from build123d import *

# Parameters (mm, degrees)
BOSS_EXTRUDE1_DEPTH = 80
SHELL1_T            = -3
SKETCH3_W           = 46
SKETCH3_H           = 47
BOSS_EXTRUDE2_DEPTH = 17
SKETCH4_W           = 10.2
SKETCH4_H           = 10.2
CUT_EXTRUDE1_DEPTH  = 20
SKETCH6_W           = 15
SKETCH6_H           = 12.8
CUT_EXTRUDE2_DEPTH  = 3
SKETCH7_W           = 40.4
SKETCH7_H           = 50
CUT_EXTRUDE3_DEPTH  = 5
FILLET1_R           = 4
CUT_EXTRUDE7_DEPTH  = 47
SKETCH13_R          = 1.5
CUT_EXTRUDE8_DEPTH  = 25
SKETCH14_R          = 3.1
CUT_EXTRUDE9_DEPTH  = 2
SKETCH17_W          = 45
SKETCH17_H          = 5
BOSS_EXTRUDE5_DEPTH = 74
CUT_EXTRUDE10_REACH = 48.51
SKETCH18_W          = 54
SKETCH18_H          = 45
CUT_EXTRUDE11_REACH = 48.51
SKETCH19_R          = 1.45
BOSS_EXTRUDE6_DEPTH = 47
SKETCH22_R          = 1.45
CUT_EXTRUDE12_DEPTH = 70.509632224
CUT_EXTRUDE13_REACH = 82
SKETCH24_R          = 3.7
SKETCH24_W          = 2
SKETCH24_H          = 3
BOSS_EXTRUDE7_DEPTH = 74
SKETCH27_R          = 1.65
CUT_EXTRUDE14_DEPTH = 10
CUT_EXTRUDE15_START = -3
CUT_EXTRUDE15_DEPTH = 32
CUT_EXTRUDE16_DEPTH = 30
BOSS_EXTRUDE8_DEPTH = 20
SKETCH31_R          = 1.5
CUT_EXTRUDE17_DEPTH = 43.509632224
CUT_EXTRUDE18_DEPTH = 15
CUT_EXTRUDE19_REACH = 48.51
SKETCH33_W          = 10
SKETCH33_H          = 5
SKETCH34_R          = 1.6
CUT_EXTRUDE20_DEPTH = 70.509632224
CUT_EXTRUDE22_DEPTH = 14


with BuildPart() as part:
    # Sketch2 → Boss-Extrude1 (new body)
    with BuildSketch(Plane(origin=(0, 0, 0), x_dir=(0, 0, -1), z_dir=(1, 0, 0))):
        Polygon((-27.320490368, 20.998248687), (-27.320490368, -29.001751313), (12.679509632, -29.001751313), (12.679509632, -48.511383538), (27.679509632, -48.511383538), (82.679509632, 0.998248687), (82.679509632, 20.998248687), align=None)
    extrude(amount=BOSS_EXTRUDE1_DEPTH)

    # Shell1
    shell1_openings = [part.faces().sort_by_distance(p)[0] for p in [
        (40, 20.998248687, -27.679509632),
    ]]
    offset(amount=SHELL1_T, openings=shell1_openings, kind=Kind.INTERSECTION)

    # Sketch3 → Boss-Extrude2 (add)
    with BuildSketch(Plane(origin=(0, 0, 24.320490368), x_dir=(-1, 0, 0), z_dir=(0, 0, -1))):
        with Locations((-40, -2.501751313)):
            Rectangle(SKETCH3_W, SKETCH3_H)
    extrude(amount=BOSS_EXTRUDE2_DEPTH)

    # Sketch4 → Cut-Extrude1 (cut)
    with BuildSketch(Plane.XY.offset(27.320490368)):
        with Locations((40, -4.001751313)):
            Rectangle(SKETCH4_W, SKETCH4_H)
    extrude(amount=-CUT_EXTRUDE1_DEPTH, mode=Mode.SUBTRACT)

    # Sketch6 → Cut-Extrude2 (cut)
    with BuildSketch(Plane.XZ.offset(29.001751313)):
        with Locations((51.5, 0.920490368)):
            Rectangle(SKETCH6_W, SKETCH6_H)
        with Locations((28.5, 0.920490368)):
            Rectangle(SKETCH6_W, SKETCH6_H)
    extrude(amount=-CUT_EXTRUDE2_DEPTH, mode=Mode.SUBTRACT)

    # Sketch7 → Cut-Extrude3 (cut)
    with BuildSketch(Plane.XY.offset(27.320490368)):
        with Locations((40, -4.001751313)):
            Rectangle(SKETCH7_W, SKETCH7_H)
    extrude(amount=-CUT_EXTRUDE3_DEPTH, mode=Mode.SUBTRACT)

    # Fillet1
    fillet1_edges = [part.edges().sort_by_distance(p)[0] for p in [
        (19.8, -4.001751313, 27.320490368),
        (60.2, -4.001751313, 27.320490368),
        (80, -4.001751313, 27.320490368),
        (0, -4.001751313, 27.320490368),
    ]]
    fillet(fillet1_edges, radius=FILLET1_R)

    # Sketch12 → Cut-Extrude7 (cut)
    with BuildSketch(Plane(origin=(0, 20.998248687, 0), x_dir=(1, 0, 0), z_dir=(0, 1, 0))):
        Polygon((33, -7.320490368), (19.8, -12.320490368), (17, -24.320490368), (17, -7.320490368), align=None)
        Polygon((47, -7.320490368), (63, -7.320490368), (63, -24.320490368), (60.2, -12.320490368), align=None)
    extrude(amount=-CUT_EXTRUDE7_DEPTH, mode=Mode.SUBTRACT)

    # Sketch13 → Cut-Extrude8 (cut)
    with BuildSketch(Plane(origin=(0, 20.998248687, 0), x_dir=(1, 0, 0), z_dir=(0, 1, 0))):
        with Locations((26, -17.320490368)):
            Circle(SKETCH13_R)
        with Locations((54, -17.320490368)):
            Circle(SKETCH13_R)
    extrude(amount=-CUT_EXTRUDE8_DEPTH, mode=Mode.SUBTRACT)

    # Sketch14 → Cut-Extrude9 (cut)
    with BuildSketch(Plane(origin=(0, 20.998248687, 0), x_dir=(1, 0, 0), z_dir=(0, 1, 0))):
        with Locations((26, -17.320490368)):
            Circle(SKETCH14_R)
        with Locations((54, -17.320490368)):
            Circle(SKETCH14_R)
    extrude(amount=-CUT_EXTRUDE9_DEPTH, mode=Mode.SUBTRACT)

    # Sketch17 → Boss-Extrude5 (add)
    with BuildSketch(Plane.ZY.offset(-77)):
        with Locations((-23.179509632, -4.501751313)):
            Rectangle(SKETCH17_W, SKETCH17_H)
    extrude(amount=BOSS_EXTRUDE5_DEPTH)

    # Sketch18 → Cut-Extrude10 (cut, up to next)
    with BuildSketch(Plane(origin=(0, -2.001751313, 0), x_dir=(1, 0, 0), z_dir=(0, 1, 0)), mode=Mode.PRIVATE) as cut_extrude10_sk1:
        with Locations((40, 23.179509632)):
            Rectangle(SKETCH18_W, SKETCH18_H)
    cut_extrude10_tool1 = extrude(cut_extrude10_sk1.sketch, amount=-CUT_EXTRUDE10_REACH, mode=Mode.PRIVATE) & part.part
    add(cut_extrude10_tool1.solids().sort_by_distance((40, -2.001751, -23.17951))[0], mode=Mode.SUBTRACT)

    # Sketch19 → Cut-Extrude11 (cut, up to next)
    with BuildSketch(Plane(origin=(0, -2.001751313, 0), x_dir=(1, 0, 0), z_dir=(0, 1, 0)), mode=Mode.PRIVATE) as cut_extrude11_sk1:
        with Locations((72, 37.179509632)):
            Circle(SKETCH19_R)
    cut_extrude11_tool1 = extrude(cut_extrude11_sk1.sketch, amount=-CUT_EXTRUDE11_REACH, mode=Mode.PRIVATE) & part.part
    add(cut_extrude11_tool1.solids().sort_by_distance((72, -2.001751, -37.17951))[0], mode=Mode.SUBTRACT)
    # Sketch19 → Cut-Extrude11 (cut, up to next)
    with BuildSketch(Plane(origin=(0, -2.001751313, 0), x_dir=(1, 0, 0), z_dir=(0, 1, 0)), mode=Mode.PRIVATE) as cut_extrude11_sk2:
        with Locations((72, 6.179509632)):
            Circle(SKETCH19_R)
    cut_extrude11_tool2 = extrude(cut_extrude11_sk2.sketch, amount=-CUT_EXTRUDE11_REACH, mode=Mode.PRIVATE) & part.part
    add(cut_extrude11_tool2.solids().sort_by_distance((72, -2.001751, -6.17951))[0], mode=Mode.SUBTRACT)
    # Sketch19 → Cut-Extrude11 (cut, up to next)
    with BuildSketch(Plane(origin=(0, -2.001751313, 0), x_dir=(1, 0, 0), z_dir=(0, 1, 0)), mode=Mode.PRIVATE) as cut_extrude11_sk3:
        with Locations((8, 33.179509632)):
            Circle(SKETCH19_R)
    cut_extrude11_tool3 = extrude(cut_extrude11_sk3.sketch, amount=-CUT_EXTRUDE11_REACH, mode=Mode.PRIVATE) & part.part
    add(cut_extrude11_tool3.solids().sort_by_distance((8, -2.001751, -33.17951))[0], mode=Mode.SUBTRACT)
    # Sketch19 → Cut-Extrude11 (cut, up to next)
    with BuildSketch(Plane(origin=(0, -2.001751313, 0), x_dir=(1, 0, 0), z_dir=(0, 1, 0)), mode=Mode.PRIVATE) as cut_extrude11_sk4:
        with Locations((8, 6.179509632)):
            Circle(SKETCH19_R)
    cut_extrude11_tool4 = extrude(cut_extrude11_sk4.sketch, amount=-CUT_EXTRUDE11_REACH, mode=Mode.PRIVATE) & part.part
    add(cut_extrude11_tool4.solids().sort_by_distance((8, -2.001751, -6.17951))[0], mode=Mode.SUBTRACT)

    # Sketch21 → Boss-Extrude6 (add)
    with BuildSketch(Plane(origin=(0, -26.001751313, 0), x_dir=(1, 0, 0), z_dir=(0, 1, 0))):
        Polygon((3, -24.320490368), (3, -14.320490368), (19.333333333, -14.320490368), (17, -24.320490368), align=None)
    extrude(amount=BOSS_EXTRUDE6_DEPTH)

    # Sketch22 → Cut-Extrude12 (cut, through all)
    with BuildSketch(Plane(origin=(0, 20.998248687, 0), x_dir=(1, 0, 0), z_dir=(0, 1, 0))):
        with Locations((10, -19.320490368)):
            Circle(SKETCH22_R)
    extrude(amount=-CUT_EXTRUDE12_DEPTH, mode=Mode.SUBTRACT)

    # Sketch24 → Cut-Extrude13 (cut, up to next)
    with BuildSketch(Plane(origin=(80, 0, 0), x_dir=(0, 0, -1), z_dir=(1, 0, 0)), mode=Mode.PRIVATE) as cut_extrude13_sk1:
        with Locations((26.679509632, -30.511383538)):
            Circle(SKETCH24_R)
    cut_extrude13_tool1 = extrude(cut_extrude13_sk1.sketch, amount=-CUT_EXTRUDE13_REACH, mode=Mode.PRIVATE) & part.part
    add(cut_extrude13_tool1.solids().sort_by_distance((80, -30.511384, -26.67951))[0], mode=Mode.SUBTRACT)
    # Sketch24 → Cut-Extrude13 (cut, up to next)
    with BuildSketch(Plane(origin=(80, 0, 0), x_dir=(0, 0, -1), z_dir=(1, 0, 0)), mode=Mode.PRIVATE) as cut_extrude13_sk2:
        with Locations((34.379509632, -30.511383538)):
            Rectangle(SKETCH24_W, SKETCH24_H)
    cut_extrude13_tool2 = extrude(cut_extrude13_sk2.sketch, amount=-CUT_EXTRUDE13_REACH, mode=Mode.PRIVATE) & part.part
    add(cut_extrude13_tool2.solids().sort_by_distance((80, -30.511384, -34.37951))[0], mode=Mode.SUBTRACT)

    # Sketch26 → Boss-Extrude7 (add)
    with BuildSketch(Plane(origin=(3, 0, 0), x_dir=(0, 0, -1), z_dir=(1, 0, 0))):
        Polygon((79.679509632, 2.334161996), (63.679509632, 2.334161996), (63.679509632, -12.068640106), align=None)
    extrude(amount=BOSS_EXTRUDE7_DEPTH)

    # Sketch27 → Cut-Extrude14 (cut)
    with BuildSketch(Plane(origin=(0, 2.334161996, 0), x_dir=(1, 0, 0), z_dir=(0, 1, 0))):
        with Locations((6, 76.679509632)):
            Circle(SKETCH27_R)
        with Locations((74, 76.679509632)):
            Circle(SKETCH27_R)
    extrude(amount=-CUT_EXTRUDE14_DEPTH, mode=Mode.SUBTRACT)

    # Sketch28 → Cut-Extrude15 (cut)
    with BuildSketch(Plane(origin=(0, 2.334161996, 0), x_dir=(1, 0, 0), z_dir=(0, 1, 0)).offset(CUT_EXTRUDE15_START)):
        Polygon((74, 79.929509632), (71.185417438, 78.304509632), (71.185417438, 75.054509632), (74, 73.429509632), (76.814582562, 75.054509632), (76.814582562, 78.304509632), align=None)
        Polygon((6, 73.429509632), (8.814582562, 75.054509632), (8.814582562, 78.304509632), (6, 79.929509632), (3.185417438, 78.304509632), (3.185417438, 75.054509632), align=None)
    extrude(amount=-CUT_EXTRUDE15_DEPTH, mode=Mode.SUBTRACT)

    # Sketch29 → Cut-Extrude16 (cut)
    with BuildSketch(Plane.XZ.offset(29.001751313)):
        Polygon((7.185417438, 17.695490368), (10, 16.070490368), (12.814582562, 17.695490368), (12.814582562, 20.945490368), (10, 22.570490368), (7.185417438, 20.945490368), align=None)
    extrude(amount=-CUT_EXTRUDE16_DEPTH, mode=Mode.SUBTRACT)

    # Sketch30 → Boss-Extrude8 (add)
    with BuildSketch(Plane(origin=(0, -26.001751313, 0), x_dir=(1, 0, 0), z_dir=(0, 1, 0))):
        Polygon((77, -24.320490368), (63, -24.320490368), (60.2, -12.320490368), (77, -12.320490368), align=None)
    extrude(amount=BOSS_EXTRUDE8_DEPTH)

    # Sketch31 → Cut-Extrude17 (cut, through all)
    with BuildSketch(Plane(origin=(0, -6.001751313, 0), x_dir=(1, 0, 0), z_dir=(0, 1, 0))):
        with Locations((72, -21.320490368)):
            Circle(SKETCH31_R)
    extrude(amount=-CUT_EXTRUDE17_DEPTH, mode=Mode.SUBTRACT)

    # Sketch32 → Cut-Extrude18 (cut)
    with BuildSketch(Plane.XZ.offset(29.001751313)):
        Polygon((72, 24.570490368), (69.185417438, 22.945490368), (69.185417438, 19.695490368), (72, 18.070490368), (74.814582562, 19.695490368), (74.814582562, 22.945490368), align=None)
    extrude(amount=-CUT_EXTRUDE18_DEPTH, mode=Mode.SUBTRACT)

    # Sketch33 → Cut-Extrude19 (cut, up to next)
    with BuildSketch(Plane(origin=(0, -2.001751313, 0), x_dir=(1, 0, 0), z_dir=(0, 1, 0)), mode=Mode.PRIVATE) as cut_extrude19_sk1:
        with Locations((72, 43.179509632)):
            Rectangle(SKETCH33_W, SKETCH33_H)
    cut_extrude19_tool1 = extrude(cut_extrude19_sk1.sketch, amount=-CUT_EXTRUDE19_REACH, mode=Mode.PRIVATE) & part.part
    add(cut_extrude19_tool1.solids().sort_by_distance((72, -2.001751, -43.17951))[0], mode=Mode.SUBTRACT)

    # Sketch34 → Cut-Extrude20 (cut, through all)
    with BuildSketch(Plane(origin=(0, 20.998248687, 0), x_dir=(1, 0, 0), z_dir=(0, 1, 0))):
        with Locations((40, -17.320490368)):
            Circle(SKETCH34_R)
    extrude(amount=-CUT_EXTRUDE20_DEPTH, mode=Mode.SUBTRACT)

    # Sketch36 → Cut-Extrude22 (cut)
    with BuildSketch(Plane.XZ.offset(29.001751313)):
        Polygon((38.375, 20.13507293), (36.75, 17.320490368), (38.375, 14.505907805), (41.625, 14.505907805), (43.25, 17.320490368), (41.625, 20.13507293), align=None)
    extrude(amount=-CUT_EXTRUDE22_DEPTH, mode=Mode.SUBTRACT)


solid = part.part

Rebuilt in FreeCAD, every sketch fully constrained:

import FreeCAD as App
import Part
import Sketcher
Q = App.Units.Quantity


def edges_at(feature, points):
    """Names of the edges that pass closest to the given points."""
    edges = feature.Shape.Edges
    near = lambda p: min(range(len(edges)), key=lambda i: edges[i].distToShape(Part.Vertex(*p))[0])
    return sorted({f"Edge{near(p) + 1}" for p in points})


def faces_at(feature, points):
    """Names of the faces that lie closest to the given points."""
    faces = feature.Shape.Faces
    near = lambda p: min(range(len(faces)), key=lambda i: faces[i].distToShape(Part.Vertex(*p))[0])
    return sorted({f"Face{near(p) + 1}" for p in points})


def add_polygon(sketch, points):
    """Adds a closed chain of lines whose ends are joined by coincident constraints."""
    first, n = sketch.GeometryCount, len(points)
    for a, b in zip(points, points[1:] + points[:1]):
        sketch.addGeometry(Part.LineSegment(App.Vector(*a, 0), App.Vector(*b, 0)), False)
    for i in range(n):
        sketch.addConstraint(Sketcher.Constraint("Coincident", first + i, 2, first + (i + 1) % n, 1))

doc = App.newDocument("Part")
body = doc.addObject("PartDesign::Body", "Body")

# Sketch on YZ plane
sketch1 = body.newObject("Sketcher::SketchObject", "Sketch")
sketch1.AttachmentSupport = (doc.getObject("YZ_Plane"), [""])
sketch1.MapMode = "FlatFace"
add_polygon(sketch1, [(21, 27), (-29, 27), (-29, -13), (-49, -13), (-49, -28), (1, -83), (21, -83)])  # lines 0-6
sketch1.addConstraint(Sketcher.Constraint("Horizontal", 0))
sketch1.addConstraint(Sketcher.Constraint("Vertical", 1))
sketch1.addConstraint(Sketcher.Constraint("Horizontal", 2))
sketch1.addConstraint(Sketcher.Constraint("Vertical", 3))
sketch1.addConstraint(Sketcher.Constraint("Horizontal", 5))
sketch1.addConstraint(Sketcher.Constraint("Vertical", 6))
sketch1.addConstraint(Sketcher.Constraint("DistanceX", 0, 2, 0, 1, Q("50 mm")))
sketch1.addConstraint(Sketcher.Constraint("DistanceX", 5, 1, 5, 2, Q("20 mm")))
sketch1.addConstraint(Sketcher.Constraint("DistanceY", 1, 2, 1, 1, Q("40 mm")))
sketch1.addConstraint(Sketcher.Constraint("DistanceY", 3, 2, 3, 1, Q("15 mm")))
sketch1.addConstraint(Sketcher.Constraint("DistanceY", 6, 1, 6, 2, Q("110 mm")))
sketch1.addConstraint(Sketcher.Constraint("DistanceX", 2, 2, 2, 1, Q("19.509632 mm")))
sketch1.addConstraint(Sketcher.Constraint("DistanceX", 0, 2, -1, 1, Q("29.001751 mm")))
sketch1.addConstraint(Sketcher.Constraint("DistanceY", -1, 1, 0, 2, Q("27.32049 mm")))
pad1 = body.newObject("PartDesign::Pad", "Pad")
pad1.Profile = sketch1
pad1.Length = 80
doc.recompute()

thickness = body.newObject("PartDesign::Thickness", "Thickness")
thickness.Base = (pad1, faces_at(pad1, [(40, 20.998, -27.68)]))
thickness.Value = 3
thickness.Reversed = True
thickness.Join = "Intersection"

# Sketch on XY plane
sketch2 = body.newObject("Sketcher::SketchObject", "Sketch001")
sketch2.AttachmentSupport = (doc.getObject("XY_Plane"), [""])
sketch2.MapMode = "FlatFace"
sketch2.AttachmentOffset = App.Placement(App.Vector(0, 0, 24.32049), App.Rotation())
add_polygon(sketch2, [(63, 21), (63, -26), (17, -26), (17, 21)])  # lines 0-3
sketch2.addConstraint(Sketcher.Constraint("Vertical", 0))
sketch2.addConstraint(Sketcher.Constraint("Horizontal", 1))
sketch2.addConstraint(Sketcher.Constraint("Vertical", 2))
sketch2.addConstraint(Sketcher.Constraint("Horizontal", 3))
sketch2.addConstraint(Sketcher.Constraint("DistanceX", 1, 2, 1, 1, Q("46 mm")))
sketch2.addConstraint(Sketcher.Constraint("DistanceY", 0, 2, 0, 1, Q("47 mm")))
sketch2.addConstraint(Sketcher.Constraint("DistanceX", -1, 1, 0, 2, Q("63 mm")))
sketch2.addConstraint(Sketcher.Constraint("DistanceY", 0, 2, -1, 1, Q("26.001751 mm")))
pad2 = body.newObject("PartDesign::Pad", "Pad001")
pad2.Profile = sketch2
pad2.Length = 17
pad2.Reversed = True

# Sketch on XY plane
sketch3 = body.newObject("Sketcher::SketchObject", "Sketch002")
sketch3.AttachmentSupport = (doc.getObject("XY_Plane"), [""])
sketch3.MapMode = "FlatFace"
sketch3.AttachmentOffset = App.Placement(App.Vector(0, 0, 27.32049), App.Rotation())
add_polygon(sketch3, [(35, 1), (35, -9), (45, -9), (45, 1)])  # lines 0-3
sketch3.addConstraint(Sketcher.Constraint("Vertical", 0))
sketch3.addConstraint(Sketcher.Constraint("Horizontal", 1))
sketch3.addConstraint(Sketcher.Constraint("Vertical", 2))
sketch3.addConstraint(Sketcher.Constraint("Horizontal", 3))
sketch3.addConstraint(Sketcher.Constraint("Equal", 3, 0))
sketch3.addConstraint(Sketcher.Constraint("DistanceX", 1, 1, 1, 2, Q("10.2 mm")))
sketch3.addConstraint(Sketcher.Constraint("DistanceX", -1, 1, 0, 2, Q("34.9 mm")))
sketch3.addConstraint(Sketcher.Constraint("DistanceY", 0, 2, -1, 1, Q("9.101751 mm")))
pocket1 = body.newObject("PartDesign::Pocket", "Pocket")
pocket1.Profile = sketch3
pocket1.Length = 20

# Sketch on XZ plane
sketch4 = body.newObject("Sketcher::SketchObject", "Sketch003")
sketch4.AttachmentSupport = (doc.getObject("XZ_Plane"), [""])
sketch4.MapMode = "FlatFace"
sketch4.AttachmentOffset = App.Placement(App.Vector(0, 0, 29.001751), App.Rotation())
add_polygon(sketch4, [(44, 7), (44, -5), (59, -5), (59, 7)])  # lines 0-3
add_polygon(sketch4, [(21, 7), (21, -5), (36, -5), (36, 7)])  # lines 4-7
sketch4.addConstraint(Sketcher.Constraint("Vertical", 0))
sketch4.addConstraint(Sketcher.Constraint("Horizontal", 1))
sketch4.addConstraint(Sketcher.Constraint("Vertical", 2))
sketch4.addConstraint(Sketcher.Constraint("Horizontal", 3))
sketch4.addConstraint(Sketcher.Constraint("Vertical", 4))
sketch4.addConstraint(Sketcher.Constraint("Horizontal", 5))
sketch4.addConstraint(Sketcher.Constraint("Vertical", 6))
sketch4.addConstraint(Sketcher.Constraint("Horizontal", 7))
sketch4.addConstraint(Sketcher.Constraint("Horizontal", 1, 2, 4, 2))
sketch4.addConstraint(Sketcher.Constraint("Horizontal", 3, 2, 6, 2))
sketch4.addConstraint(Sketcher.Constraint("Equal", 3, 5))
sketch4.addConstraint(Sketcher.Constraint("DistanceX", 1, 1, 1, 2, Q("15 mm")))
sketch4.addConstraint(Sketcher.Constraint("DistanceY", 0, 2, 0, 1, Q("12.8 mm")))
sketch4.addConstraint(Sketcher.Constraint("DistanceX", -1, 1, 0, 2, Q("44 mm")))
sketch4.addConstraint(Sketcher.Constraint("DistanceX", -1, 1, 4, 2, Q("21 mm")))
sketch4.addConstraint(Sketcher.Constraint("DistanceY", 0, 2, -1, 1, Q("5.47951 mm")))
pocket2 = body.newObject("PartDesign::Pocket", "Pocket001")
pocket2.Profile = sketch4
pocket2.Length = 3

# Sketch on XY plane
sketch5 = body.newObject("Sketcher::SketchObject", "Sketch004")
sketch5.AttachmentSupport = (doc.getObject("XY_Plane"), [""])
sketch5.MapMode = "FlatFace"
sketch5.AttachmentOffset = App.Placement(App.Vector(0, 0, 27.32049), App.Rotation())
add_polygon(sketch5, [(20, 21), (20, -29), (60, -29), (60, 21)])  # lines 0-3
sketch5.addConstraint(Sketcher.Constraint("Vertical", 0))
sketch5.addConstraint(Sketcher.Constraint("Horizontal", 1))
sketch5.addConstraint(Sketcher.Constraint("Vertical", 2))
sketch5.addConstraint(Sketcher.Constraint("Horizontal", 3))
sketch5.addConstraint(Sketcher.Constraint("DistanceY", 0, 2, 0, 1, Q("50 mm")))
sketch5.addConstraint(Sketcher.Constraint("DistanceX", 1, 1, 1, 2, Q("40.4 mm")))
sketch5.addConstraint(Sketcher.Constraint("DistanceX", -1, 1, 0, 2, Q("19.8 mm")))
sketch5.addConstraint(Sketcher.Constraint("DistanceY", 0, 2, -1, 1, Q("29.001751 mm")))
pocket3 = body.newObject("PartDesign::Pocket", "Pocket002")
pocket3.Profile = sketch5
pocket3.Length = 5
doc.recompute()

fillet = body.newObject("PartDesign::Fillet", "Fillet")
fillet.Base = (pocket3, edges_at(pocket3, [
    (19.8, -4.002, 27.32),
    (60.2, -4.002, 27.32),
    (80, -4.002, 27.32),
    (0, -4.002, 27.32),
]))
fillet.Radius = 4

# Sketch on XZ plane
sketch6 = body.newObject("Sketcher::SketchObject", "Sketch005")
sketch6.AttachmentSupport = (doc.getObject("XZ_Plane"), [""])
sketch6.MapMode = "FlatFace"
sketch6.AttachmentOffset = App.Placement(App.Vector(0, 0, -20.998249), App.Rotation())
add_polygon(sketch6, [(20, 12), (33, 7), (17, 7), (17, 24)])  # lines 0-3
add_polygon(sketch6, [(63, 7), (47, 7), (60, 12), (63, 24)])  # lines 4-7
sketch6.addConstraint(Sketcher.Constraint("Horizontal", 1))
sketch6.addConstraint(Sketcher.Constraint("Vertical", 2))
sketch6.addConstraint(Sketcher.Constraint("Horizontal", 4))
sketch6.addConstraint(Sketcher.Constraint("Vertical", 7))
sketch6.addConstraint(Sketcher.Constraint("Horizontal", 1, 2, 4, 2))
sketch6.addConstraint(Sketcher.Constraint("Horizontal", 3, 2, 5, 2))
sketch6.addConstraint(Sketcher.Constraint("Horizontal", 2, 2, 6, 2))
sketch6.addConstraint(Sketcher.Constraint("Equal", 1, 4))
sketch6.addConstraint(Sketcher.Constraint("Equal", 0, 5))
sketch6.addConstraint(Sketcher.Constraint("DistanceX", 1, 2, 1, 1, Q("16 mm")))
sketch6.addConstraint(Sketcher.Constraint("DistanceY", 2, 1, 2, 2, Q("17 mm")))
sketch6.addConstraint(Sketcher.Constraint("DistanceX", -1, 1, 0, 2, Q("33 mm")))
sketch6.addConstraint(Sketcher.Constraint("DistanceX", -1, 1, 4, 2, Q("47 mm")))
sketch6.addConstraint(Sketcher.Constraint("DistanceY", 1, 2, 3, 2, Q("5 mm")))
sketch6.addConstraint(Sketcher.Constraint("DistanceX", -1, 1, 3, 2, Q("19.8 mm")))
sketch6.addConstraint(Sketcher.Constraint("DistanceY", -1, 1, 0, 2, Q("7.32049 mm")))
pocket4 = body.newObject("PartDesign::Pocket", "Pocket003")
pocket4.Profile = sketch6
pocket4.Length = 47
pocket4.Reversed = True

# Sketch on XZ plane
sketch7 = body.newObject("Sketcher::SketchObject", "Sketch006")
sketch7.AttachmentSupport = (doc.getObject("XZ_Plane"), [""])
sketch7.MapMode = "FlatFace"
sketch7.AttachmentOffset = App.Placement(App.Vector(0, 0, -20.998249), App.Rotation())
sketch7.addGeometry(Part.Circle(App.Vector(26, 17.3, 0), App.Vector(0, 0, 1), 1.5), False)
sketch7.addGeometry(Part.Circle(App.Vector(54, 17.3, 0), App.Vector(0, 0, 1), 1.5), False)
sketch7.addConstraint(Sketcher.Constraint("Equal", 0, 1))
sketch7.addConstraint(Sketcher.Constraint("Horizontal", 0, 3, 1, 3))
sketch7.addConstraint(Sketcher.Constraint("Diameter", 0, Q("3 mm")))
sketch7.addConstraint(Sketcher.Constraint("DistanceX", -1, 1, 0, 3, Q("26 mm")))
sketch7.addConstraint(Sketcher.Constraint("DistanceX", -1, 1, 1, 3, Q("54 mm")))
sketch7.addConstraint(Sketcher.Constraint("DistanceY", -1, 1, 0, 3, Q("17.32049 mm")))
pocket5 = body.newObject("PartDesign::Pocket", "Pocket004")
pocket5.Profile = sketch7
pocket5.Length = 25
pocket5.Reversed = True

# Sketch on XZ plane
sketch8 = body.newObject("Sketcher::SketchObject", "Sketch007")
sketch8.AttachmentSupport = (doc.getObject("XZ_Plane"), [""])
sketch8.MapMode = "FlatFace"
sketch8.AttachmentOffset = App.Placement(App.Vector(0, 0, -20.998249), App.Rotation())
sketch8.addGeometry(Part.Circle(App.Vector(26, 17.3, 0), App.Vector(0, 0, 1), 3.1), False)
sketch8.addGeometry(Part.Circle(App.Vector(54, 17.3, 0), App.Vector(0, 0, 1), 3.1), False)
sketch8.addConstraint(Sketcher.Constraint("Equal", 0, 1))
sketch8.addConstraint(Sketcher.Constraint("Horizontal", 0, 3, 1, 3))
sketch8.addConstraint(Sketcher.Constraint("Diameter", 0, Q("6.2 mm")))
sketch8.addConstraint(Sketcher.Constraint("DistanceX", -1, 1, 0, 3, Q("26 mm")))
sketch8.addConstraint(Sketcher.Constraint("DistanceX", -1, 1, 1, 3, Q("54 mm")))
sketch8.addConstraint(Sketcher.Constraint("DistanceY", -1, 1, 0, 3, Q("17.32049 mm")))
pocket6 = body.newObject("PartDesign::Pocket", "Pocket005")
pocket6.Profile = sketch8
pocket6.Length = 2
pocket6.Reversed = True

# Sketch on YZ plane
sketch9 = body.newObject("Sketcher::SketchObject", "Sketch008")
sketch9.AttachmentSupport = (doc.getObject("YZ_Plane"), [""])
sketch9.MapMode = "FlatFace"
sketch9.AttachmentOffset = App.Placement(App.Vector(0, 0, 77), App.Rotation())
add_polygon(sketch9, [(-2, -46), (-7, -46), (-7, -1), (-2, -1)])  # lines 0-3
sketch9.addConstraint(Sketcher.Constraint("Horizontal", 0))
sketch9.addConstraint(Sketcher.Constraint("Vertical", 1))
sketch9.addConstraint(Sketcher.Constraint("Horizontal", 2))
sketch9.addConstraint(Sketcher.Constraint("Vertical", 3))
sketch9.addConstraint(Sketcher.Constraint("DistanceX", 0, 2, 0, 1, Q("5 mm")))
sketch9.addConstraint(Sketcher.Constraint("DistanceY", 1, 1, 1, 2, Q("45 mm")))
sketch9.addConstraint(Sketcher.Constraint("DistanceX", 0, 2, -1, 1, Q("7.001751 mm")))
sketch9.addConstraint(Sketcher.Constraint("DistanceY", 0, 2, -1, 1, Q("45.67951 mm")))
pad3 = body.newObject("PartDesign::Pad", "Pad002")
pad3.Profile = sketch9
pad3.Length = 74
pad3.Reversed = True

# Sketch on XZ plane
sketch10 = body.newObject("Sketcher::SketchObject", "Sketch009")
sketch10.AttachmentSupport = (doc.getObject("XZ_Plane"), [""])
sketch10.MapMode = "FlatFace"
sketch10.AttachmentOffset = App.Placement(App.Vector(0, 0, 2.001751), App.Rotation())
add_polygon(sketch10, [(13, -46), (13, -1), (67, -1), (67, -46)])  # lines 0-3
sketch10.addConstraint(Sketcher.Constraint("Vertical", 0))
sketch10.addConstraint(Sketcher.Constraint("Horizontal", 1))
sketch10.addConstraint(Sketcher.Constraint("Vertical", 2))
sketch10.addConstraint(Sketcher.Constraint("Horizontal", 3))
sketch10.addConstraint(Sketcher.Constraint("DistanceX", 1, 1, 1, 2, Q("54 mm")))
sketch10.addConstraint(Sketcher.Constraint("DistanceY", 0, 1, 0, 2, Q("45 mm")))
sketch10.addConstraint(Sketcher.Constraint("DistanceX", -1, 1, 0, 2, Q("13 mm")))
sketch10.addConstraint(Sketcher.Constraint("DistanceY", 0, 2, -1, 1, Q("0.67951 mm")))
pocket7 = body.newObject("PartDesign::Pocket", "Pocket006")
pocket7.Profile = sketch10
pocket7.Type = "UpToFirst"
pocket7.Reversed = True

# Sketch on XZ plane
sketch11 = body.newObject("Sketcher::SketchObject", "Sketch010")
sketch11.AttachmentSupport = (doc.getObject("XZ_Plane"), [""])
sketch11.MapMode = "FlatFace"
sketch11.AttachmentOffset = App.Placement(App.Vector(0, 0, 2.001751), App.Rotation())
sketch11.addGeometry(Part.Circle(App.Vector(72, -37.2, 0), App.Vector(0, 0, 1), 1.4), False)
sketch11.addConstraint(Sketcher.Constraint("Diameter", 0, Q("2.9 mm")))
sketch11.addConstraint(Sketcher.Constraint("DistanceX", -1, 1, 0, 3, Q("72 mm")))
sketch11.addConstraint(Sketcher.Constraint("DistanceY", 0, 3, -1, 1, Q("37.17951 mm")))
pocket8 = body.newObject("PartDesign::Pocket", "Pocket007")
pocket8.Profile = sketch11
pocket8.Type = "UpToFirst"
pocket8.Reversed = True

# Sketch on XZ plane
sketch12 = body.newObject("Sketcher::SketchObject", "Sketch011")
sketch12.AttachmentSupport = (doc.getObject("XZ_Plane"), [""])
sketch12.MapMode = "FlatFace"
sketch12.AttachmentOffset = App.Placement(App.Vector(0, 0, 2.001751), App.Rotation())
sketch12.addGeometry(Part.Circle(App.Vector(72, -6.2, 0), App.Vector(0, 0, 1), 1.4), False)
sketch12.addConstraint(Sketcher.Constraint("Diameter", 0, Q("2.9 mm")))
sketch12.addConstraint(Sketcher.Constraint("DistanceX", -1, 1, 0, 3, Q("72 mm")))
sketch12.addConstraint(Sketcher.Constraint("DistanceY", 0, 3, -1, 1, Q("6.17951 mm")))
pocket9 = body.newObject("PartDesign::Pocket", "Pocket008")
pocket9.Profile = sketch12
pocket9.Type = "UpToFirst"
pocket9.Reversed = True

# Sketch on XZ plane
sketch13 = body.newObject("Sketcher::SketchObject", "Sketch012")
sketch13.AttachmentSupport = (doc.getObject("XZ_Plane"), [""])
sketch13.MapMode = "FlatFace"
sketch13.AttachmentOffset = App.Placement(App.Vector(0, 0, 2.001751), App.Rotation())
sketch13.addGeometry(Part.Circle(App.Vector(8, -33.2, 0), App.Vector(0, 0, 1), 1.4), False)
sketch13.addConstraint(Sketcher.Constraint("Diameter", 0, Q("2.9 mm")))
sketch13.addConstraint(Sketcher.Constraint("DistanceX", -1, 1, 0, 3, Q("8 mm")))
sketch13.addConstraint(Sketcher.Constraint("DistanceY", 0, 3, -1, 1, Q("33.17951 mm")))
pocket10 = body.newObject("PartDesign::Pocket", "Pocket009")
pocket10.Profile = sketch13
pocket10.Type = "UpToFirst"
pocket10.Reversed = True

# Sketch on XZ plane
sketch14 = body.newObject("Sketcher::SketchObject", "Sketch013")
sketch14.AttachmentSupport = (doc.getObject("XZ_Plane"), [""])
sketch14.MapMode = "FlatFace"
sketch14.AttachmentOffset = App.Placement(App.Vector(0, 0, 2.001751), App.Rotation())
sketch14.addGeometry(Part.Circle(App.Vector(8, -6.2, 0), App.Vector(0, 0, 1), 1.4), False)
sketch14.addConstraint(Sketcher.Constraint("Diameter", 0, Q("2.9 mm")))
sketch14.addConstraint(Sketcher.Constraint("DistanceX", -1, 1, 0, 3, Q("8 mm")))
sketch14.addConstraint(Sketcher.Constraint("DistanceY", 0, 3, -1, 1, Q("6.17951 mm")))
pocket11 = body.newObject("PartDesign::Pocket", "Pocket010")
pocket11.Profile = sketch14
pocket11.Type = "UpToFirst"
pocket11.Reversed = True

# Sketch on XZ plane
sketch15 = body.newObject("Sketcher::SketchObject", "Sketch014")
sketch15.AttachmentSupport = (doc.getObject("XZ_Plane"), [""])
sketch15.MapMode = "FlatFace"
sketch15.AttachmentOffset = App.Placement(App.Vector(0, 0, 26.001751), App.Rotation())
add_polygon(sketch15, [(3, 14), (3, 24), (17, 24), (19, 14)])  # lines 0-3
sketch15.addConstraint(Sketcher.Constraint("Vertical", 0))
sketch15.addConstraint(Sketcher.Constraint("Horizontal", 1))
sketch15.addConstraint(Sketcher.Constraint("Horizontal", 3))
sketch15.addConstraint(Sketcher.Constraint("DistanceX", 1, 1, 1, 2, Q("14 mm")))
sketch15.addConstraint(Sketcher.Constraint("DistanceY", 0, 1, 0, 2, Q("10 mm")))
sketch15.addConstraint(Sketcher.Constraint("DistanceX", -1, 1, 0, 2, Q("3 mm")))
sketch15.addConstraint(Sketcher.Constraint("DistanceX", 3, 2, 3, 1, Q("16.333333 mm")))
sketch15.addConstraint(Sketcher.Constraint("DistanceY", -1, 1, 0, 2, Q("24.32049 mm")))
pad4 = body.newObject("PartDesign::Pad", "Pad003")
pad4.Profile = sketch15
pad4.Length = 47
pad4.Reversed = True

# Sketch on XZ plane
sketch16 = body.newObject("Sketcher::SketchObject", "Sketch015")
sketch16.AttachmentSupport = (doc.getObject("XZ_Plane"), [""])
sketch16.MapMode = "FlatFace"
sketch16.AttachmentOffset = App.Placement(App.Vector(0, 0, -20.998249), App.Rotation())
sketch16.addGeometry(Part.Circle(App.Vector(10, 19.3, 0), App.Vector(0, 0, 1), 1.4), False)
sketch16.addConstraint(Sketcher.Constraint("Diameter", 0, Q("2.9 mm")))
sketch16.addConstraint(Sketcher.Constraint("DistanceX", -1, 1, 0, 3, Q("10 mm")))
sketch16.addConstraint(Sketcher.Constraint("DistanceY", -1, 1, 0, 3, Q("19.32049 mm")))
pocket12 = body.newObject("PartDesign::Pocket", "Pocket011")
pocket12.Profile = sketch16
pocket12.Type = "ThroughAll"
pocket12.Reversed = True

# Sketch on YZ plane
sketch17 = body.newObject("Sketcher::SketchObject", "Sketch016")
sketch17.AttachmentSupport = (doc.getObject("YZ_Plane"), [""])
sketch17.MapMode = "FlatFace"
sketch17.AttachmentOffset = App.Placement(App.Vector(0, 0, 80), App.Rotation())
sketch17.addGeometry(Part.Circle(App.Vector(-30.5, -26.7, 0), App.Vector(0, 0, 1), 3.7), False)
sketch17.addConstraint(Sketcher.Constraint("Diameter", 0, Q("7.4 mm")))
sketch17.addConstraint(Sketcher.Constraint("DistanceY", 0, 3, -1, 1, Q("26.67951 mm")))
sketch17.addConstraint(Sketcher.Constraint("DistanceX", 0, 3, -1, 1, Q("30.511384 mm")))
pocket13 = body.newObject("PartDesign::Pocket", "Pocket012")
pocket13.Profile = sketch17
pocket13.Type = "UpToFirst"

# Sketch on YZ plane
sketch18 = body.newObject("Sketcher::SketchObject", "Sketch017")
sketch18.AttachmentSupport = (doc.getObject("YZ_Plane"), [""])
sketch18.MapMode = "FlatFace"
sketch18.AttachmentOffset = App.Placement(App.Vector(0, 0, 80), App.Rotation())
add_polygon(sketch18, [(-29, -33.4), (-32, -33.4), (-32, -35.4), (-29, -35.4)])  # lines 0-3
sketch18.addConstraint(Sketcher.Constraint("Horizontal", 0))
sketch18.addConstraint(Sketcher.Constraint("Vertical", 1))
sketch18.addConstraint(Sketcher.Constraint("Horizontal", 2))
sketch18.addConstraint(Sketcher.Constraint("Vertical", 3))
sketch18.addConstraint(Sketcher.Constraint("DistanceX", 0, 2, 0, 1, Q("3 mm")))
sketch18.addConstraint(Sketcher.Constraint("DistanceY", 1, 2, 1, 1, Q("2 mm")))
sketch18.addConstraint(Sketcher.Constraint("DistanceY", 0, 2, -1, 1, Q("33.37951 mm")))
sketch18.addConstraint(Sketcher.Constraint("DistanceX", 0, 2, -1, 1, Q("32.011384 mm")))
pocket14 = body.newObject("PartDesign::Pocket", "Pocket013")
pocket14.Profile = sketch18
pocket14.Type = "UpToFirst"

# Sketch on YZ plane
sketch19 = body.newObject("Sketcher::SketchObject", "Sketch018")
sketch19.AttachmentSupport = (doc.getObject("YZ_Plane"), [""])
sketch19.MapMode = "FlatFace"
sketch19.AttachmentOffset = App.Placement(App.Vector(0, 0, 3), App.Rotation())
add_polygon(sketch19, [(2, -80), (2, -64), (-12, -64)])  # lines 0-2
sketch19.addConstraint(Sketcher.Constraint("Vertical", 0))
sketch19.addConstraint(Sketcher.Constraint("Horizontal", 1))
sketch19.addConstraint(Sketcher.Constraint("DistanceY", 0, 1, 0, 2, Q("16 mm")))
sketch19.addConstraint(Sketcher.Constraint("DistanceX", 1, 2, 1, 1, Q("14.402802 mm")))
sketch19.addConstraint(Sketcher.Constraint("DistanceX", -1, 1, 0, 2, Q("2.334162 mm")))
sketch19.addConstraint(Sketcher.Constraint("DistanceY", 0, 2, -1, 1, Q("63.67951 mm")))
pad5 = body.newObject("PartDesign::Pad", "Pad004")
pad5.Profile = sketch19
pad5.Length = 74

# Sketch on XZ plane
sketch20 = body.newObject("Sketcher::SketchObject", "Sketch019")
sketch20.AttachmentSupport = (doc.getObject("XZ_Plane"), [""])
sketch20.MapMode = "FlatFace"
sketch20.AttachmentOffset = App.Placement(App.Vector(0, 0, -2.334162), App.Rotation())
sketch20.addGeometry(Part.Circle(App.Vector(6, -76.7, 0), App.Vector(0, 0, 1), 1.6), False)
sketch20.addGeometry(Part.Circle(App.Vector(74, -76.7, 0), App.Vector(0, 0, 1), 1.6), False)
sketch20.addConstraint(Sketcher.Constraint("Equal", 0, 1))
sketch20.addConstraint(Sketcher.Constraint("Horizontal", 0, 3, 1, 3))
sketch20.addConstraint(Sketcher.Constraint("Diameter", 0, Q("3.3 mm")))
sketch20.addConstraint(Sketcher.Constraint("DistanceX", -1, 1, 0, 3, Q("6 mm")))
sketch20.addConstraint(Sketcher.Constraint("DistanceX", -1, 1, 1, 3, Q("74 mm")))
sketch20.addConstraint(Sketcher.Constraint("DistanceY", 0, 3, -1, 1, Q("76.67951 mm")))
pocket15 = body.newObject("PartDesign::Pocket", "Pocket014")
pocket15.Profile = sketch20
pocket15.Length = 10
pocket15.Reversed = True

# Sketch on XZ plane
sketch21 = body.newObject("Sketcher::SketchObject", "Sketch020")
sketch21.AttachmentSupport = (doc.getObject("XZ_Plane"), [""])
sketch21.MapMode = "FlatFace"
sketch21.AttachmentOffset = App.Placement(App.Vector(0, 0, 0.665838), App.Rotation())
add_polygon(sketch21, [(74, -79.9), (71.2, -78.3), (71.2, -75.1), (74, -73.4), (76.8, -75.1), (76.8, -78.3)])  # lines 0-5
add_polygon(sketch21, [(6, -73.4), (8.8, -75.1), (8.8, -78.3), (6, -79.9), (3.2, -78.3), (3.2, -75.1)])  # lines 6-11
sketch21.addConstraint(Sketcher.Constraint("Vertical", 1))
sketch21.addConstraint(Sketcher.Constraint("Vertical", 4))
sketch21.addConstraint(Sketcher.Constraint("Vertical", 7))
sketch21.addConstraint(Sketcher.Constraint("Vertical", 10))
sketch21.addConstraint(Sketcher.Constraint("Parallel", 0, 3))
sketch21.addConstraint(Sketcher.Constraint("Parallel", 2, 5))
sketch21.addConstraint(Sketcher.Constraint("Parallel", 3, 6))
sketch21.addConstraint(Sketcher.Constraint("Parallel", 5, 8))
sketch21.addConstraint(Sketcher.Constraint("Parallel", 6, 9))
sketch21.addConstraint(Sketcher.Constraint("Parallel", 8, 11))
sketch21.addConstraint(Sketcher.Constraint("Horizontal", 1, 2, 3, 2))
sketch21.addConstraint(Sketcher.Constraint("Horizontal", 0, 2, 4, 2))
sketch21.addConstraint(Sketcher.Constraint("Horizontal", 3, 2, 6, 2))
sketch21.addConstraint(Sketcher.Constraint("Horizontal", 4, 2, 7, 2))
sketch21.addConstraint(Sketcher.Constraint("Horizontal", 5, 2, 8, 2))
sketch21.addConstraint(Sketcher.Constraint("Horizontal", 7, 2, 9, 2))
sketch21.addConstraint(Sketcher.Constraint("Horizontal", 6, 2, 10, 2))
sketch21.addConstraint(Sketcher.Constraint("Vertical", 2, 2, 5, 2))
sketch21.addConstraint(Sketcher.Constraint("Angle", 0, Q("150 deg")))
sketch21.addConstraint(Sketcher.Constraint("DistanceX", -1, 1, 2, 2, Q("74 mm")))
sketch21.addConstraint(Sketcher.Constraint("DistanceX", -1, 1, 8, 2, Q("6 mm")))
sketch21.addConstraint(Sketcher.Constraint("DistanceY", 1, 1, 1, 2, Q("3.25 mm")))
sketch21.addConstraint(Sketcher.Constraint("DistanceY", 5, 2, 2, 2, Q("6.5 mm")))
sketch21.addConstraint(Sketcher.Constraint("DistanceY", 0, 2, -1, 1, Q("78.30451 mm")))
pocket16 = body.newObject("PartDesign::Pocket", "Pocket015")
pocket16.Profile = sketch21
pocket16.Length = 32
pocket16.Reversed = True

# Sketch on XZ plane
sketch22 = body.newObject("Sketcher::SketchObject", "Sketch021")
sketch22.AttachmentSupport = (doc.getObject("XZ_Plane"), [""])
sketch22.MapMode = "FlatFace"
sketch22.AttachmentOffset = App.Placement(App.Vector(0, 0, 29.001751), App.Rotation())
add_polygon(sketch22, [(7.2, 17.7), (10, 16.1), (12.8, 17.7), (12.8, 20.9), (10, 22.6), (7.2, 20.9)])  # lines 0-5
sketch22.addConstraint(Sketcher.Constraint("Vertical", 2))
sketch22.addConstraint(Sketcher.Constraint("Vertical", 5))
sketch22.addConstraint(Sketcher.Constraint("Parallel", 0, 3))
sketch22.addConstraint(Sketcher.Constraint("Parallel", 1, 4))
sketch22.addConstraint(Sketcher.Constraint("Horizontal", 2, 2, 4, 2))
sketch22.addConstraint(Sketcher.Constraint("Horizontal", 1, 2, 5, 2))
sketch22.addConstraint(Sketcher.Constraint("Vertical", 0, 2, 3, 2))
sketch22.addConstraint(Sketcher.Constraint("Angle", 0, Q("-30 deg")))
sketch22.addConstraint(Sketcher.Constraint("DistanceX", -1, 1, 0, 2, Q("10 mm")))
sketch22.addConstraint(Sketcher.Constraint("DistanceY", 2, 1, 2, 2, Q("3.25 mm")))
sketch22.addConstraint(Sketcher.Constraint("DistanceY", 0, 2, 3, 2, Q("6.5 mm")))
sketch22.addConstraint(Sketcher.Constraint("DistanceY", -1, 1, 0, 2, Q("16.07049 mm")))
pocket17 = body.newObject("PartDesign::Pocket", "Pocket016")
pocket17.Profile = sketch22
pocket17.Length = 30

# Sketch on XZ plane
sketch23 = body.newObject("Sketcher::SketchObject", "Sketch022")
sketch23.AttachmentSupport = (doc.getObject("XZ_Plane"), [""])
sketch23.MapMode = "FlatFace"
sketch23.AttachmentOffset = App.Placement(App.Vector(0, 0, 26.001751), App.Rotation())
add_polygon(sketch23, [(63, 24), (77, 24), (77, 12), (60, 12)])  # lines 0-3
sketch23.addConstraint(Sketcher.Constraint("Horizontal", 0))
sketch23.addConstraint(Sketcher.Constraint("Vertical", 1))
sketch23.addConstraint(Sketcher.Constraint("Horizontal", 2))
sketch23.addConstraint(Sketcher.Constraint("DistanceX", 0, 1, 0, 2, Q("14 mm")))
sketch23.addConstraint(Sketcher.Constraint("DistanceY", 1, 2, 1, 1, Q("12 mm")))
sketch23.addConstraint(Sketcher.Constraint("DistanceX", 2, 2, 2, 1, Q("16.8 mm")))
sketch23.addConstraint(Sketcher.Constraint("DistanceX", -1, 1, 0, 2, Q("77 mm")))
sketch23.addConstraint(Sketcher.Constraint("DistanceY", -1, 1, 0, 2, Q("24.32049 mm")))
pad6 = body.newObject("PartDesign::Pad", "Pad005")
pad6.Profile = sketch23
pad6.Length = 20
pad6.Reversed = True

# Sketch on XZ plane
sketch24 = body.newObject("Sketcher::SketchObject", "Sketch023")
sketch24.AttachmentSupport = (doc.getObject("XZ_Plane"), [""])
sketch24.MapMode = "FlatFace"
sketch24.AttachmentOffset = App.Placement(App.Vector(0, 0, 6.001751), App.Rotation())
sketch24.addGeometry(Part.Circle(App.Vector(72, 21.3, 0), App.Vector(0, 0, 1), 1.5), False)
sketch24.addConstraint(Sketcher.Constraint("Diameter", 0, Q("3 mm")))
sketch24.addConstraint(Sketcher.Constraint("DistanceX", -1, 1, 0, 3, Q("72 mm")))
sketch24.addConstraint(Sketcher.Constraint("DistanceY", -1, 1, 0, 3, Q("21.32049 mm")))
pocket18 = body.newObject("PartDesign::Pocket", "Pocket017")
pocket18.Profile = sketch24
pocket18.Type = "ThroughAll"
pocket18.Reversed = True

# Sketch on XZ plane
sketch25 = body.newObject("Sketcher::SketchObject", "Sketch024")
sketch25.AttachmentSupport = (doc.getObject("XZ_Plane"), [""])
sketch25.MapMode = "FlatFace"
sketch25.AttachmentOffset = App.Placement(App.Vector(0, 0, 29.001751), App.Rotation())
add_polygon(sketch25, [(72, 24.6), (69.2, 22.9), (69.2, 19.7), (72, 18.1), (74.8, 19.7), (74.8, 22.9)])  # lines 0-5
sketch25.addConstraint(Sketcher.Constraint("Vertical", 1))
sketch25.addConstraint(Sketcher.Constraint("Vertical", 4))
sketch25.addConstraint(Sketcher.Constraint("Parallel", 0, 3))
sketch25.addConstraint(Sketcher.Constraint("Parallel", 2, 5))
sketch25.addConstraint(Sketcher.Constraint("Horizontal", 1, 2, 3, 2))
sketch25.addConstraint(Sketcher.Constraint("Horizontal", 0, 2, 4, 2))
sketch25.addConstraint(Sketcher.Constraint("Vertical", 2, 2, 5, 2))
sketch25.addConstraint(Sketcher.Constraint("Angle", 0, Q("-150 deg")))
sketch25.addConstraint(Sketcher.Constraint("DistanceX", -1, 1, 2, 2, Q("72 mm")))
sketch25.addConstraint(Sketcher.Constraint("DistanceY", 1, 2, 1, 1, Q("3.25 mm")))
sketch25.addConstraint(Sketcher.Constraint("DistanceY", 2, 2, 5, 2, Q("6.5 mm")))
sketch25.addConstraint(Sketcher.Constraint("DistanceY", -1, 1, 0, 2, Q("22.94549 mm")))
pocket19 = body.newObject("PartDesign::Pocket", "Pocket018")
pocket19.Profile = sketch25
pocket19.Length = 15

# Sketch on XZ plane
sketch26 = body.newObject("Sketcher::SketchObject", "Sketch025")
sketch26.AttachmentSupport = (doc.getObject("XZ_Plane"), [""])
sketch26.MapMode = "FlatFace"
sketch26.AttachmentOffset = App.Placement(App.Vector(0, 0, 2.001751), App.Rotation())
add_polygon(sketch26, [(67, -46), (67, -41), (77, -41), (77, -46)])  # lines 0-3
sketch26.addConstraint(Sketcher.Constraint("Vertical", 0))
sketch26.addConstraint(Sketcher.Constraint("Horizontal", 1))
sketch26.addConstraint(Sketcher.Constraint("Vertical", 2))
sketch26.addConstraint(Sketcher.Constraint("Horizontal", 3))
sketch26.addConstraint(Sketcher.Constraint("DistanceX", 1, 1, 1, 2, Q("10 mm")))
sketch26.addConstraint(Sketcher.Constraint("DistanceY", 0, 1, 0, 2, Q("5 mm")))
sketch26.addConstraint(Sketcher.Constraint("DistanceX", -1, 1, 0, 2, Q("67 mm")))
sketch26.addConstraint(Sketcher.Constraint("DistanceY", 0, 2, -1, 1, Q("40.67951 mm")))
pocket20 = body.newObject("PartDesign::Pocket", "Pocket019")
pocket20.Profile = sketch26
pocket20.Type = "UpToFirst"
pocket20.Reversed = True

# Sketch on XZ plane
sketch27 = body.newObject("Sketcher::SketchObject", "Sketch026")
sketch27.AttachmentSupport = (doc.getObject("XZ_Plane"), [""])
sketch27.MapMode = "FlatFace"
sketch27.AttachmentOffset = App.Placement(App.Vector(0, 0, -20.998249), App.Rotation())
sketch27.addGeometry(Part.Circle(App.Vector(40, 17.3, 0), App.Vector(0, 0, 1), 1.6), False)
sketch27.addConstraint(Sketcher.Constraint("Diameter", 0, Q("3.2 mm")))
sketch27.addConstraint(Sketcher.Constraint("DistanceX", -1, 1, 0, 3, Q("40 mm")))
sketch27.addConstraint(Sketcher.Constraint("DistanceY", -1, 1, 0, 3, Q("17.32049 mm")))
pocket21 = body.newObject("PartDesign::Pocket", "Pocket020")
pocket21.Profile = sketch27
pocket21.Type = "ThroughAll"
pocket21.Reversed = True

# Sketch on XZ plane
sketch28 = body.newObject("Sketcher::SketchObject", "Sketch027")
sketch28.AttachmentSupport = (doc.getObject("XZ_Plane"), [""])
sketch28.MapMode = "FlatFace"
sketch28.AttachmentOffset = App.Placement(App.Vector(0, 0, 29.001751), App.Rotation())
add_polygon(sketch28, [(38.4, 20.1), (36.8, 17.3), (38.4, 14.5), (41.6, 14.5), (43.2, 17.3), (41.6, 20.1)])  # lines 0-5
sketch28.addConstraint(Sketcher.Constraint("Horizontal", 2))
sketch28.addConstraint(Sketcher.Constraint("Horizontal", 5))
sketch28.addConstraint(Sketcher.Constraint("Parallel", 0, 3))
sketch28.addConstraint(Sketcher.Constraint("Parallel", 1, 4))
sketch28.addConstraint(Sketcher.Constraint("Horizontal", 0, 2, 3, 2))
sketch28.addConstraint(Sketcher.Constraint("Vertical", 2, 2, 4, 2))
sketch28.addConstraint(Sketcher.Constraint("Vertical", 1, 2, 5, 2))
sketch28.addConstraint(Sketcher.Constraint("Angle", 0, Q("-120 deg")))
sketch28.addConstraint(Sketcher.Constraint("DistanceX", 2, 1, 2, 2, Q("3.25 mm")))
sketch28.addConstraint(Sketcher.Constraint("DistanceX", 0, 2, 3, 2, Q("6.5 mm")))
sketch28.addConstraint(Sketcher.Constraint("DistanceX", -1, 1, 0, 2, Q("36.75 mm")))
sketch28.addConstraint(Sketcher.Constraint("DistanceY", -1, 1, 0, 2, Q("17.32049 mm")))
pocket22 = body.newObject("PartDesign::Pocket", "Pocket021")
pocket22.Profile = sketch28
pocket22.Length = 14

doc.recompute()
